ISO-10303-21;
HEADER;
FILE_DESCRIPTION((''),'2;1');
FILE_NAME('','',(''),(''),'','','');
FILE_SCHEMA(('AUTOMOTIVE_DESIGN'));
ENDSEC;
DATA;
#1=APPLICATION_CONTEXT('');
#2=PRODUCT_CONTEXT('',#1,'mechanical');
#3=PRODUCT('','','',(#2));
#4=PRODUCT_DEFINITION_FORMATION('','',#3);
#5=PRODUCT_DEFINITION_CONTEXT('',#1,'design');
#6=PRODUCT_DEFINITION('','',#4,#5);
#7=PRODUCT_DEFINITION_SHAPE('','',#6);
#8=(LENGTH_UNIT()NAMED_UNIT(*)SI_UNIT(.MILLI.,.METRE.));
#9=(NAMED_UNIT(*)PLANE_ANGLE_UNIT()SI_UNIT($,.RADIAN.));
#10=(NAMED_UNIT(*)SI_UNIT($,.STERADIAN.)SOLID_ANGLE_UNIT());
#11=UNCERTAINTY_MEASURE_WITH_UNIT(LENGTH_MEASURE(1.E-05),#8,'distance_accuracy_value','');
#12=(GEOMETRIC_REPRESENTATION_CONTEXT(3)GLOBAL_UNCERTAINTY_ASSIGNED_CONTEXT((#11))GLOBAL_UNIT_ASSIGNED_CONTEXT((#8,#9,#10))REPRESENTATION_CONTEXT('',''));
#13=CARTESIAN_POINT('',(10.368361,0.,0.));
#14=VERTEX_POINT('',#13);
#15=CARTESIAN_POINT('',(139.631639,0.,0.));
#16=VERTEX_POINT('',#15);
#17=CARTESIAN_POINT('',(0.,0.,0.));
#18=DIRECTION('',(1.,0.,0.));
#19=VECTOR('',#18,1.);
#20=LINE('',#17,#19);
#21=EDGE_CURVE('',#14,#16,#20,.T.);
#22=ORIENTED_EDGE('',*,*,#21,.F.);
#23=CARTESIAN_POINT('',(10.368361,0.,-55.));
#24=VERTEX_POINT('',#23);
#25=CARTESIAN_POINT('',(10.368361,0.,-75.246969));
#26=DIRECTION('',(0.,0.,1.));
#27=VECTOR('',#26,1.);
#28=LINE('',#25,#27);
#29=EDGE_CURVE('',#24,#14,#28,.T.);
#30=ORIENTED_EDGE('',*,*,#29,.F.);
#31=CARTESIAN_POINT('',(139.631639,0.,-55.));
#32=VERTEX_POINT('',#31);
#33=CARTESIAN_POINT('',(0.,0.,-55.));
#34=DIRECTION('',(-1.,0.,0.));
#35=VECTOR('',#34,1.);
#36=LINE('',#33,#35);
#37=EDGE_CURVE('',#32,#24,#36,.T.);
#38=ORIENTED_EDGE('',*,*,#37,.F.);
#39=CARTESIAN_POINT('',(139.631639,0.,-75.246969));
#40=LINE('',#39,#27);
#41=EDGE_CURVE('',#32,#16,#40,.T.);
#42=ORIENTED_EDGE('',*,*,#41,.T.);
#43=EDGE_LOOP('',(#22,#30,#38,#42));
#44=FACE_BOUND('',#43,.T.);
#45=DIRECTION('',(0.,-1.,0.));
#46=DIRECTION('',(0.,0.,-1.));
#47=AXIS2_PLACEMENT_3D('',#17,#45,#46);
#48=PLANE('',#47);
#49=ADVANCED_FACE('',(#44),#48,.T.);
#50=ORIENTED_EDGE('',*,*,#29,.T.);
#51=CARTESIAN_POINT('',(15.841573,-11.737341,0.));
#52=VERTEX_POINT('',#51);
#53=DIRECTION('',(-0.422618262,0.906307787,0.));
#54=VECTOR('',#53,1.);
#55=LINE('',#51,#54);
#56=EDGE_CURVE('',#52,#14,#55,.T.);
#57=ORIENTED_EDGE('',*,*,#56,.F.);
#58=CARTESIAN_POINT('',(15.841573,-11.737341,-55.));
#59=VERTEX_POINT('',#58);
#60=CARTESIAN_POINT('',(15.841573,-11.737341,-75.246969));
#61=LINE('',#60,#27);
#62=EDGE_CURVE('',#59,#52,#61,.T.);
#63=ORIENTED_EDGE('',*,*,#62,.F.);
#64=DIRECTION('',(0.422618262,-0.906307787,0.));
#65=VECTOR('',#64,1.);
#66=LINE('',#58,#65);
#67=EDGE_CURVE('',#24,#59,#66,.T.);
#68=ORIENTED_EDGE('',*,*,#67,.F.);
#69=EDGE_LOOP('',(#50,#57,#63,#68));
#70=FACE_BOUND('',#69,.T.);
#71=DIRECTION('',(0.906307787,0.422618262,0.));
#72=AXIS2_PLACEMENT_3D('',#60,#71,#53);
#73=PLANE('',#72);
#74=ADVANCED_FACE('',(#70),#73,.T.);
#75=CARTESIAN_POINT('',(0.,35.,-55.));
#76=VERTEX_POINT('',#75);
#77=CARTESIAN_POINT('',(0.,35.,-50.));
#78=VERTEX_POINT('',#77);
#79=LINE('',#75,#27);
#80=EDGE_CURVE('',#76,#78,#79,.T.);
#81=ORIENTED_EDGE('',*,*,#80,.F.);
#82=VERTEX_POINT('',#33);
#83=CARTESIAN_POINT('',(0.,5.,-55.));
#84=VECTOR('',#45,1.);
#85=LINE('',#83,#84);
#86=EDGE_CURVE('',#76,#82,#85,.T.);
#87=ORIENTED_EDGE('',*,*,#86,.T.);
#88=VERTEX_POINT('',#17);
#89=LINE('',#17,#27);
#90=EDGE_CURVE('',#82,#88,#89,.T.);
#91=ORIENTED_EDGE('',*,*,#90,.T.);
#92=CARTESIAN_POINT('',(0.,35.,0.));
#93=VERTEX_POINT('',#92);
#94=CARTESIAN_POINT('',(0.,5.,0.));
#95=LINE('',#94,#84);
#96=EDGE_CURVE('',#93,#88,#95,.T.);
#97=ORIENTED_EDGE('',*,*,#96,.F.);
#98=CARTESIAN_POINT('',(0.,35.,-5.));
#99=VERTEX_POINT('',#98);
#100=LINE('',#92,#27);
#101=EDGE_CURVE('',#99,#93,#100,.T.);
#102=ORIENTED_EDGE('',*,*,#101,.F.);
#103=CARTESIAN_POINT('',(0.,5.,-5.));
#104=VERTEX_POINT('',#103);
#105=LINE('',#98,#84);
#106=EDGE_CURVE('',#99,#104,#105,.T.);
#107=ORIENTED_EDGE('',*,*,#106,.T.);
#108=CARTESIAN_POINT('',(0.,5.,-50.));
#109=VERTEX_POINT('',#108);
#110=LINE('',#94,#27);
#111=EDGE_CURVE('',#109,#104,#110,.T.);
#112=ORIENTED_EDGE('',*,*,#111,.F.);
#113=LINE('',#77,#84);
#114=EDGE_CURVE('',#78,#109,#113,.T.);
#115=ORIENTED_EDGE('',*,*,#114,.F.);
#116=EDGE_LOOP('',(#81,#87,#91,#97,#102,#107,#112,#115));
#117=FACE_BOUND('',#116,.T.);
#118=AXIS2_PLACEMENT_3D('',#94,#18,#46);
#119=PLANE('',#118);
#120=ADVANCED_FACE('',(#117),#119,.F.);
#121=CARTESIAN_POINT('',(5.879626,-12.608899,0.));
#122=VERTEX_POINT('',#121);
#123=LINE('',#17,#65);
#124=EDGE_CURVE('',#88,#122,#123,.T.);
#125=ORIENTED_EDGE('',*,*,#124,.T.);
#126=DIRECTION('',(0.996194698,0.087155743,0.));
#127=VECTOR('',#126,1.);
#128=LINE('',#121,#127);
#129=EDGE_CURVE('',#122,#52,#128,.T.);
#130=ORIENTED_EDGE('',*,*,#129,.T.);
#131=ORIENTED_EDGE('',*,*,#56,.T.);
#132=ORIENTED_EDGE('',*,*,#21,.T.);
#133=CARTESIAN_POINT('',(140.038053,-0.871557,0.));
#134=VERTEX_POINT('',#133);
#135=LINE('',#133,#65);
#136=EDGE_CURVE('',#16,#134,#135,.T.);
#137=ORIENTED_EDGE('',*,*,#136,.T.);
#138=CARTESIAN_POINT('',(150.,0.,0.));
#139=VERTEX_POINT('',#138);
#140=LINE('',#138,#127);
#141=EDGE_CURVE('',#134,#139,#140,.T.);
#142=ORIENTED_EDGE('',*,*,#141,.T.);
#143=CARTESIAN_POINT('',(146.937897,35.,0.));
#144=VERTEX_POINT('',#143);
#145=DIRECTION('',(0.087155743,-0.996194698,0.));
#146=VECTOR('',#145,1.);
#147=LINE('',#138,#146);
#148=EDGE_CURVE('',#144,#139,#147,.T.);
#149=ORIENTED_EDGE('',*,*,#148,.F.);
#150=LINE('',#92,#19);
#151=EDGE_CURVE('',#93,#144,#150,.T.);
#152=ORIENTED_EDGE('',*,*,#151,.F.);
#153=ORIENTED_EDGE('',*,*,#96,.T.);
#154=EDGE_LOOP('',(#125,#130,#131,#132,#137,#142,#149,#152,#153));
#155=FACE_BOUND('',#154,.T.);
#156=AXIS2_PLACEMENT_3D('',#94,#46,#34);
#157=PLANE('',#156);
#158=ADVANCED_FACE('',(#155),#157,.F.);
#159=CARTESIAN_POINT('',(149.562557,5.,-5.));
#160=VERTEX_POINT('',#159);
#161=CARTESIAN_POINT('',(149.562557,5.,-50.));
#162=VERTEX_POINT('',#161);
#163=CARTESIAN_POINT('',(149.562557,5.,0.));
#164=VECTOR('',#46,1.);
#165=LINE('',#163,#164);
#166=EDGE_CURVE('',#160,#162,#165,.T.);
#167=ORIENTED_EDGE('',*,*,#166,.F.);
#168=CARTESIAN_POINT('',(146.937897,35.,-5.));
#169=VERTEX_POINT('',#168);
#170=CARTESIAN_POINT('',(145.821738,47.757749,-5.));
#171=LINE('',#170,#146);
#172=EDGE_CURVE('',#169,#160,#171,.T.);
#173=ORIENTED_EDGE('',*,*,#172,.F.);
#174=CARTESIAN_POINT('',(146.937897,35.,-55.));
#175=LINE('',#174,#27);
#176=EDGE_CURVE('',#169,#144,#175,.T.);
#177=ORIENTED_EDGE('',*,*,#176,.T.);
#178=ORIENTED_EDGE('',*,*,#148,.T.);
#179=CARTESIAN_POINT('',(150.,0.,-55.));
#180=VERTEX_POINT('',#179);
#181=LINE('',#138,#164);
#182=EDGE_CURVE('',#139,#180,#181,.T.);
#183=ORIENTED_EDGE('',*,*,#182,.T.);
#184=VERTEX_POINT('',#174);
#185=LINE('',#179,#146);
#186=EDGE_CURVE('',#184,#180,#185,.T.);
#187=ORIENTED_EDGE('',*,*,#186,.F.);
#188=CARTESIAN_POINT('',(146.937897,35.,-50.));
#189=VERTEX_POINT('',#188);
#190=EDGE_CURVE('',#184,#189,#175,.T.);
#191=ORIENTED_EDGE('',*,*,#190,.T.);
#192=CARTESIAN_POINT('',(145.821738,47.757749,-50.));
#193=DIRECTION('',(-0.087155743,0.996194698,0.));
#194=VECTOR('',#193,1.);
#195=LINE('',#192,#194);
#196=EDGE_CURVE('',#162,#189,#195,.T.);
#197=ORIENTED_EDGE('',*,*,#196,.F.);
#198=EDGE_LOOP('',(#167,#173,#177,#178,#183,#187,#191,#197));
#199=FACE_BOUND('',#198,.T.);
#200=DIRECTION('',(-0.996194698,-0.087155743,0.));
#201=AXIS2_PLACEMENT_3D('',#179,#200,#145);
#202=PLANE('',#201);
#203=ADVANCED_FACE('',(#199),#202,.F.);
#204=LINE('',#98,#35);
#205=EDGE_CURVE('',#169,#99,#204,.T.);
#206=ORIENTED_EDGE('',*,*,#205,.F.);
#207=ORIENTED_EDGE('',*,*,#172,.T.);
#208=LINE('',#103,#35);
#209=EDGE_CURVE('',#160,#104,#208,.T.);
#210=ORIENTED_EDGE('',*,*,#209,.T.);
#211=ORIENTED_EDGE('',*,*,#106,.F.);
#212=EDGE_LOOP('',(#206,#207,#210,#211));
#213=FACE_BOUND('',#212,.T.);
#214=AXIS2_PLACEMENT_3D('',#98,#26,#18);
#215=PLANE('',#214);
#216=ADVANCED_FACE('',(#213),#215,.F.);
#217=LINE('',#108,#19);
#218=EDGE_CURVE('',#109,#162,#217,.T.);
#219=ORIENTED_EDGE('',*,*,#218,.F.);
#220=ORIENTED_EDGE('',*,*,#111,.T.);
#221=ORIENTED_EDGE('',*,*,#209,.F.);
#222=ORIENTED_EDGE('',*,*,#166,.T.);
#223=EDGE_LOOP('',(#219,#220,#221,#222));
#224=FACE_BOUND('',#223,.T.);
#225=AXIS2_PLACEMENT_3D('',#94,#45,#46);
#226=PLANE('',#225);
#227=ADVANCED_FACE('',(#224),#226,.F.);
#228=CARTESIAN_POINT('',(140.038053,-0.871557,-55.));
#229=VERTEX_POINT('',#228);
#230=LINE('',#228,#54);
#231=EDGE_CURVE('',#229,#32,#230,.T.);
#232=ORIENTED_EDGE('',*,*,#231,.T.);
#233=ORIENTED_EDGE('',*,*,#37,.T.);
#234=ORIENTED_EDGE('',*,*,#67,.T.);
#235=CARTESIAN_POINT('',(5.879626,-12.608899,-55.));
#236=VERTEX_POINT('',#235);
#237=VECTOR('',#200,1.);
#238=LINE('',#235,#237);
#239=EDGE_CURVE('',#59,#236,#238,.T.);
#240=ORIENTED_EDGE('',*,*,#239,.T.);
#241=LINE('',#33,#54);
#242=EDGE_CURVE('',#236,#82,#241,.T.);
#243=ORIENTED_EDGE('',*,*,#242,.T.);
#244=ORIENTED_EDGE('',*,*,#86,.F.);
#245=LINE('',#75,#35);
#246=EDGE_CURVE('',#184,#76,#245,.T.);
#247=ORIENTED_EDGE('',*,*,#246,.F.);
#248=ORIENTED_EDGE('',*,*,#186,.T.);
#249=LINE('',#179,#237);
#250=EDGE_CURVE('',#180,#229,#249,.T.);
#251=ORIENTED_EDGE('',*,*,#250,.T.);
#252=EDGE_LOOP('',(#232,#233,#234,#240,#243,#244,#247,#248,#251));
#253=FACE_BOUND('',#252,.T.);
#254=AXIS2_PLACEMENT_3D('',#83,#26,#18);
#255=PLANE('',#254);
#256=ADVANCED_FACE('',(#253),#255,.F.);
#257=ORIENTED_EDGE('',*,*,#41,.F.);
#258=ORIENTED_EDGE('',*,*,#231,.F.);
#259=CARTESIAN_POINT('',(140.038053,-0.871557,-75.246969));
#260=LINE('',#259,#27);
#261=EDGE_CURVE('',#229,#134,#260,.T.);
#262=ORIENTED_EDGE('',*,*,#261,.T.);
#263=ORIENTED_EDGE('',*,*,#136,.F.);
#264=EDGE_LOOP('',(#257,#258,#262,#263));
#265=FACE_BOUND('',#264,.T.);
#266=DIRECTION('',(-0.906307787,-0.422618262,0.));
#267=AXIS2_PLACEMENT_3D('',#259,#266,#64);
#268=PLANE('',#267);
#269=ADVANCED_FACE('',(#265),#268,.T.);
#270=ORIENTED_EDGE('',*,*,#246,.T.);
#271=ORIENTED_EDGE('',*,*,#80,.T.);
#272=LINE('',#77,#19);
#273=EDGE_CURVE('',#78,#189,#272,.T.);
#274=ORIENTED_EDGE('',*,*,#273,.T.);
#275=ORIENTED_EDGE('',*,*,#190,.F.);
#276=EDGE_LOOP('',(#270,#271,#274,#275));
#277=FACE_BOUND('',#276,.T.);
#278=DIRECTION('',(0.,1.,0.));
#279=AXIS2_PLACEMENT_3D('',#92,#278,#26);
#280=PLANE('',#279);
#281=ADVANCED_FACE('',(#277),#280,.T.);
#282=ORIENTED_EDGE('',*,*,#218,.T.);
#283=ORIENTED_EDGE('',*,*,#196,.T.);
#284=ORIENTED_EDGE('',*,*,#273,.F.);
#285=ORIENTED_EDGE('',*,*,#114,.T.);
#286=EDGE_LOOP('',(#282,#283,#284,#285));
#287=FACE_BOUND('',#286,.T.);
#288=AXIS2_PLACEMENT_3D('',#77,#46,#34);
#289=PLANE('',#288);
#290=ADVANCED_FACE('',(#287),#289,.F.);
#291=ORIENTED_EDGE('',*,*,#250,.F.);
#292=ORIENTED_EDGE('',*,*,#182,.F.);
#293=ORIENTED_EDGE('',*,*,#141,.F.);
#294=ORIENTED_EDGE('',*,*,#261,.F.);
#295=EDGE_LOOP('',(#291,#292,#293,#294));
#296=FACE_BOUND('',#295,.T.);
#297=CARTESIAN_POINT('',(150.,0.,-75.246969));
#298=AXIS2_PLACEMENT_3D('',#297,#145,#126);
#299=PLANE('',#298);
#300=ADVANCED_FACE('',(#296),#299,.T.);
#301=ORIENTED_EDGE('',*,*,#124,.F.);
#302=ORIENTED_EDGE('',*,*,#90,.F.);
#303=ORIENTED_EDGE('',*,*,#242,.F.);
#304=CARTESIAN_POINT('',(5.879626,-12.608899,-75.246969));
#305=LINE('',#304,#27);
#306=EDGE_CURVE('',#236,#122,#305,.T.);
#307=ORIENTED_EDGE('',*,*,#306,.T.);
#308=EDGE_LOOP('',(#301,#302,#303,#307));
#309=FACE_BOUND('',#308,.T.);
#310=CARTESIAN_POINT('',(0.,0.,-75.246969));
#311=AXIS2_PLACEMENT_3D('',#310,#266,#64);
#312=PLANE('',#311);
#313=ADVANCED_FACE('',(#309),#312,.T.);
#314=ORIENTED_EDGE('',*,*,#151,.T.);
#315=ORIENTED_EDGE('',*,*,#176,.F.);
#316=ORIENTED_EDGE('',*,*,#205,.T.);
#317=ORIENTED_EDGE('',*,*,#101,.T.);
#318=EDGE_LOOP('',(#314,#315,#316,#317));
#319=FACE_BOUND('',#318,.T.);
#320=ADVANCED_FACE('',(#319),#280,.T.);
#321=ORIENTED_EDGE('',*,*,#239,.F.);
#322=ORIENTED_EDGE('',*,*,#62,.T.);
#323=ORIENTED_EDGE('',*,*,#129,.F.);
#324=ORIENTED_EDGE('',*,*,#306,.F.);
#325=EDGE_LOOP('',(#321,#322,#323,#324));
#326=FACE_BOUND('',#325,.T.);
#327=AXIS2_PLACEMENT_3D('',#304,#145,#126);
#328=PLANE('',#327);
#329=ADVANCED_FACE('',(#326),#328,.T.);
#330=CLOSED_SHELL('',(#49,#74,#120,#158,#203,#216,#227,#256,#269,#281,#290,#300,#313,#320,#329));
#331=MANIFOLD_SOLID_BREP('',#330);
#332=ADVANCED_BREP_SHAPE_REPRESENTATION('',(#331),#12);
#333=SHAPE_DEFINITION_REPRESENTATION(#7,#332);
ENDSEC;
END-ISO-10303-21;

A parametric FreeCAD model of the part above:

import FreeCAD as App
import Part
import Sketcher
Q = App.Units.Quantity

doc = App.newDocument("Part")
body = doc.addObject("PartDesign::Body", "Body")

sketch1 = body.newObject("Sketcher::SketchObject", "Sketch")
sketch1.AttachmentSupport = (doc.getObject("XZ_Plane"), [""])
sketch1.MapMode = "FlatFace"
sketch1.addGeometry(Part.LineSegment(App.Vector(0, -55, 0), App.Vector(0, 0, 0)), False)
sketch1.addGeometry(Part.LineSegment(App.Vector(0, 0, 0), App.Vector(150, 0, 0)), False)
sketch1.addGeometry(Part.LineSegment(App.Vector(150, 0, 0), App.Vector(150, -55, 0)), False)
sketch1.addGeometry(Part.LineSegment(App.Vector(150, -55, 0), App.Vector(0, -55, 0)), False)
sketch1.addConstraint(Sketcher.Constraint("Coincident", 0, 2, 1, 1))
sketch1.addConstraint(Sketcher.Constraint("Coincident", 1, 2, 2, 1))
sketch1.addConstraint(Sketcher.Constraint("Coincident", 2, 2, 3, 1))
sketch1.addConstraint(Sketcher.Constraint("Coincident", 3, 2, 0, 1))
sketch1.addConstraint(Sketcher.Constraint("Vertical", 0))
sketch1.addConstraint(Sketcher.Constraint("Horizontal", 1))
sketch1.addConstraint(Sketcher.Constraint("Vertical", 2))
sketch1.addConstraint(Sketcher.Constraint("Horizontal", 3))
sketch1.addConstraint(Sketcher.Constraint("Coincident", 0, 2, -1, 1))
sketch1.addConstraint(Sketcher.Constraint("DistanceX", 1, 1, 1, 2, 150.0))
sketch1.addConstraint(Sketcher.Constraint("DistanceY", 0, 1, 0, 2, 55.0))
pad1 = body.newObject("PartDesign::Pad", "Pad")
pad1.Profile = sketch1
pad1.Length = 5
pad1.Reversed = True

sketch2 = body.newObject("Sketcher::SketchObject", "Sketch001")
sketch2.AttachmentSupport = (doc.getObject("XZ_Plane"), [""])
sketch2.MapMode = "FlatFace"
sketch2.AttachmentOffset = App.Placement(App.Vector(0, 0, -5), App.Rotation())
sketch2.addGeometry(Part.LineSegment(App.Vector(0, -5, 0), App.Vector(0, 0, 0)), False)
sketch2.addGeometry(Part.LineSegment(App.Vector(0, 0, 0), App.Vector(150, 0, 0)), False)
sketch2.addGeometry(Part.LineSegment(App.Vector(150, 0, 0), App.Vector(150, -5, 0)), False)
sketch2.addGeometry(Part.LineSegment(App.Vector(150, -5, 0), App.Vector(0, -5, 0)), False)
sketch2.addGeometry(Part.LineSegment(App.Vector(0, -55, 0), App.Vector(0, -50, 0)), False)
sketch2.addGeometry(Part.LineSegment(App.Vector(0, -50, 0), App.Vector(150, -50, 0)), False)
sketch2.addGeometry(Part.LineSegment(App.Vector(150, -50, 0), App.Vector(150, -55, 0)), False)
sketch2.addGeometry(Part.LineSegment(App.Vector(150, -55, 0), App.Vector(0, -55, 0)), False)
sketch2.addConstraint(Sketcher.Constraint("Coincident", 0, 2, 1, 1))
sketch2.addConstraint(Sketcher.Constraint("Coincident", 1, 2, 2, 1))
sketch2.addConstraint(Sketcher.Constraint("Coincident", 2, 2, 3, 1))
sketch2.addConstraint(Sketcher.Constraint("Coincident", 3, 2, 0, 1))
sketch2.addConstraint(Sketcher.Constraint("Coincident", 4, 2, 5, 1))
sketch2.addConstraint(Sketcher.Constraint("Coincident", 5, 2, 6, 1))
sketch2.addConstraint(Sketcher.Constraint("Coincident", 6, 2, 7, 1))
sketch2.addConstraint(Sketcher.Constraint("Coincident", 7, 2, 4, 1))
sketch2.addConstraint(Sketcher.Constraint("Vertical", 0))
sketch2.addConstraint(Sketcher.Constraint("Horizontal", 1))
sketch2.addConstraint(Sketcher.Constraint("Vertical", 2))
sketch2.addConstraint(Sketcher.Constraint("Horizontal", 3))
sketch2.addConstraint(Sketcher.Constraint("Vertical", 4))
sketch2.addConstraint(Sketcher.Constraint("Horizontal", 5))
sketch2.addConstraint(Sketcher.Constraint("Vertical", 6))
sketch2.addConstraint(Sketcher.Constraint("Horizontal", 7))
sketch2.addConstraint(Sketcher.Constraint("Coincident", 0, 2, -1, 1))
sketch2.addConstraint(Sketcher.Constraint("PointOnObject", 4, 2, -2))
sketch2.addConstraint(Sketcher.Constraint("Vertical", 2, 2, 5, 2))
sketch2.addConstraint(Sketcher.Constraint("Equal", 2, 4))
sketch2.addConstraint(Sketcher.Constraint("DistanceX", 1, 1, 1, 2, 150.0))
sketch2.addConstraint(Sketcher.Constraint("DistanceY", 0, 1, 0, 2, 5.0))
sketch2.addConstraint(Sketcher.Constraint("DistanceY", 4, 2, -1, 1, 50.0))
pad2 = body.newObject("PartDesign::Pad", "Pad001")
pad2.Profile = sketch2
pad2.Length = 30
pad2.Reversed = True

sketch3 = body.newObject("Sketcher::SketchObject", "Sketch002")
sketch3.AttachmentSupport = (doc.getObject("XY_Plane"), [""])
sketch3.MapMode = "FlatFace"
sketch3.addGeometry(Part.LineSegment(App.Vector(0, 0, 0), App.Vector(5.879626, -12.608899, 0)), False)
sketch3.addGeometry(Part.LineSegment(App.Vector(5.879626, -12.608899, 0), App.Vector(15.841573, -11.737341, 0)), False)
sketch3.addGeometry(Part.LineSegment(App.Vector(15.841573, -11.737341, 0), App.Vector(10.368361, 0, 0)), False)
sketch3.addGeometry(Part.LineSegment(App.Vector(10.368361, 0, 0), App.Vector(0, 0, 0)), False)
sketch3.addGeometry(Part.LineSegment(App.Vector(140.038053, -0.871557, 0), App.Vector(150, 0, 0)), False)
sketch3.addGeometry(Part.LineSegment(App.Vector(150, 0, 0), App.Vector(139.631639, 0, 0)), False)
sketch3.addGeometry(Part.LineSegment(App.Vector(139.631639, 0, 0), App.Vector(140.038053, -0.871557, 0)), False)
sketch3.addConstraint(Sketcher.Constraint("Coincident", 0, 2, 1, 1))
sketch3.addConstraint(Sketcher.Constraint("Coincident", 1, 2, 2, 1))
sketch3.addConstraint(Sketcher.Constraint("Coincident", 2, 2, 3, 1))
sketch3.addConstraint(Sketcher.Constraint("Coincident", 3, 2, 0, 1))
sketch3.addConstraint(Sketcher.Constraint("Coincident", 4, 2, 5, 1))
sketch3.addConstraint(Sketcher.Constraint("Coincident", 5, 2, 6, 1))
sketch3.addConstraint(Sketcher.Constraint("Coincident", 6, 2, 4, 1))
sketch3.addConstraint(Sketcher.Constraint("Horizontal", 3))
sketch3.addConstraint(Sketcher.Constraint("Horizontal", 5))
sketch3.addConstraint(Sketcher.Constraint("Coincident", 3, 2, -1, 1))
sketch3.addConstraint(Sketcher.Constraint("PointOnObject", 4, 2, -1))
sketch3.addConstraint(Sketcher.Constraint("Parallel", 0, 2))
sketch3.addConstraint(Sketcher.Constraint("Parallel", 1, 4))
sketch3.addConstraint(Sketcher.Constraint("Parallel", 2, 6))
sketch3.addConstraint(Sketcher.Constraint("Equal", 3, 5))
sketch3.addConstraint(Sketcher.Constraint("Angle", 0, Q("-65 deg")))
sketch3.addConstraint(Sketcher.Constraint("Angle", 1, Q("5 deg")))
sketch3.addConstraint(Sketcher.Constraint("Distance", 1, 10.0))
sketch3.addConstraint(Sketcher.Constraint("DistanceX", -1, 1, 4, 2, 150.0))
sketch3.addConstraint(Sketcher.Constraint("DistanceY", 0, 2, -1, 1, 12.608899))
pad3 = body.newObject("PartDesign::Pad", "Pad002")
pad3.Profile = sketch3
pad3.Length = 55
pad3.Reversed = True

sketch4 = body.newObject("Sketcher::SketchObject", "Sketch003")
sketch4.AttachmentSupport = (doc.getObject("XY_Plane"), [""])
sketch4.MapMode = "FlatFace"
sketch4.addGeometry(Part.LineSegment(App.Vector(146.937897, 35, 0), App.Vector(150, 0, 0)), False)
sketch4.addGeometry(Part.LineSegment(App.Vector(150, 0, 0), App.Vector(150, 35, 0)), False)
sketch4.addGeometry(Part.LineSegment(App.Vector(150, 35, 0), App.Vector(146.937897, 35, 0)), False)
sketch4.addConstraint(Sketcher.Constraint("Coincident", 0, 2, 1, 1))
sketch4.addConstraint(Sketcher.Constraint("Coincident", 1, 2, 2, 1))
sketch4.addConstraint(Sketcher.Constraint("Coincident", 2, 2, 0, 1))
sketch4.addConstraint(Sketcher.Constraint("Vertical", 1))
sketch4.addConstraint(Sketcher.Constraint("Horizontal", 2))
sketch4.addConstraint(Sketcher.Constraint("PointOnObject", 0, 2, -1))
sketch4.addConstraint(Sketcher.Constraint("DistanceY", 1, 1, 1, 2, 35.0))
sketch4.addConstraint(Sketcher.Constraint("Angle", 0, Q("-85 deg")))
sketch4.addConstraint(Sketcher.Constraint("DistanceX", -1, 1, 0, 2, 150.0))
pocket1 = body.newObject("PartDesign::Pocket", "Pocket")
pocket1.Profile = sketch4
pocket1.Type = "ThroughAll"

doc.recompute()
